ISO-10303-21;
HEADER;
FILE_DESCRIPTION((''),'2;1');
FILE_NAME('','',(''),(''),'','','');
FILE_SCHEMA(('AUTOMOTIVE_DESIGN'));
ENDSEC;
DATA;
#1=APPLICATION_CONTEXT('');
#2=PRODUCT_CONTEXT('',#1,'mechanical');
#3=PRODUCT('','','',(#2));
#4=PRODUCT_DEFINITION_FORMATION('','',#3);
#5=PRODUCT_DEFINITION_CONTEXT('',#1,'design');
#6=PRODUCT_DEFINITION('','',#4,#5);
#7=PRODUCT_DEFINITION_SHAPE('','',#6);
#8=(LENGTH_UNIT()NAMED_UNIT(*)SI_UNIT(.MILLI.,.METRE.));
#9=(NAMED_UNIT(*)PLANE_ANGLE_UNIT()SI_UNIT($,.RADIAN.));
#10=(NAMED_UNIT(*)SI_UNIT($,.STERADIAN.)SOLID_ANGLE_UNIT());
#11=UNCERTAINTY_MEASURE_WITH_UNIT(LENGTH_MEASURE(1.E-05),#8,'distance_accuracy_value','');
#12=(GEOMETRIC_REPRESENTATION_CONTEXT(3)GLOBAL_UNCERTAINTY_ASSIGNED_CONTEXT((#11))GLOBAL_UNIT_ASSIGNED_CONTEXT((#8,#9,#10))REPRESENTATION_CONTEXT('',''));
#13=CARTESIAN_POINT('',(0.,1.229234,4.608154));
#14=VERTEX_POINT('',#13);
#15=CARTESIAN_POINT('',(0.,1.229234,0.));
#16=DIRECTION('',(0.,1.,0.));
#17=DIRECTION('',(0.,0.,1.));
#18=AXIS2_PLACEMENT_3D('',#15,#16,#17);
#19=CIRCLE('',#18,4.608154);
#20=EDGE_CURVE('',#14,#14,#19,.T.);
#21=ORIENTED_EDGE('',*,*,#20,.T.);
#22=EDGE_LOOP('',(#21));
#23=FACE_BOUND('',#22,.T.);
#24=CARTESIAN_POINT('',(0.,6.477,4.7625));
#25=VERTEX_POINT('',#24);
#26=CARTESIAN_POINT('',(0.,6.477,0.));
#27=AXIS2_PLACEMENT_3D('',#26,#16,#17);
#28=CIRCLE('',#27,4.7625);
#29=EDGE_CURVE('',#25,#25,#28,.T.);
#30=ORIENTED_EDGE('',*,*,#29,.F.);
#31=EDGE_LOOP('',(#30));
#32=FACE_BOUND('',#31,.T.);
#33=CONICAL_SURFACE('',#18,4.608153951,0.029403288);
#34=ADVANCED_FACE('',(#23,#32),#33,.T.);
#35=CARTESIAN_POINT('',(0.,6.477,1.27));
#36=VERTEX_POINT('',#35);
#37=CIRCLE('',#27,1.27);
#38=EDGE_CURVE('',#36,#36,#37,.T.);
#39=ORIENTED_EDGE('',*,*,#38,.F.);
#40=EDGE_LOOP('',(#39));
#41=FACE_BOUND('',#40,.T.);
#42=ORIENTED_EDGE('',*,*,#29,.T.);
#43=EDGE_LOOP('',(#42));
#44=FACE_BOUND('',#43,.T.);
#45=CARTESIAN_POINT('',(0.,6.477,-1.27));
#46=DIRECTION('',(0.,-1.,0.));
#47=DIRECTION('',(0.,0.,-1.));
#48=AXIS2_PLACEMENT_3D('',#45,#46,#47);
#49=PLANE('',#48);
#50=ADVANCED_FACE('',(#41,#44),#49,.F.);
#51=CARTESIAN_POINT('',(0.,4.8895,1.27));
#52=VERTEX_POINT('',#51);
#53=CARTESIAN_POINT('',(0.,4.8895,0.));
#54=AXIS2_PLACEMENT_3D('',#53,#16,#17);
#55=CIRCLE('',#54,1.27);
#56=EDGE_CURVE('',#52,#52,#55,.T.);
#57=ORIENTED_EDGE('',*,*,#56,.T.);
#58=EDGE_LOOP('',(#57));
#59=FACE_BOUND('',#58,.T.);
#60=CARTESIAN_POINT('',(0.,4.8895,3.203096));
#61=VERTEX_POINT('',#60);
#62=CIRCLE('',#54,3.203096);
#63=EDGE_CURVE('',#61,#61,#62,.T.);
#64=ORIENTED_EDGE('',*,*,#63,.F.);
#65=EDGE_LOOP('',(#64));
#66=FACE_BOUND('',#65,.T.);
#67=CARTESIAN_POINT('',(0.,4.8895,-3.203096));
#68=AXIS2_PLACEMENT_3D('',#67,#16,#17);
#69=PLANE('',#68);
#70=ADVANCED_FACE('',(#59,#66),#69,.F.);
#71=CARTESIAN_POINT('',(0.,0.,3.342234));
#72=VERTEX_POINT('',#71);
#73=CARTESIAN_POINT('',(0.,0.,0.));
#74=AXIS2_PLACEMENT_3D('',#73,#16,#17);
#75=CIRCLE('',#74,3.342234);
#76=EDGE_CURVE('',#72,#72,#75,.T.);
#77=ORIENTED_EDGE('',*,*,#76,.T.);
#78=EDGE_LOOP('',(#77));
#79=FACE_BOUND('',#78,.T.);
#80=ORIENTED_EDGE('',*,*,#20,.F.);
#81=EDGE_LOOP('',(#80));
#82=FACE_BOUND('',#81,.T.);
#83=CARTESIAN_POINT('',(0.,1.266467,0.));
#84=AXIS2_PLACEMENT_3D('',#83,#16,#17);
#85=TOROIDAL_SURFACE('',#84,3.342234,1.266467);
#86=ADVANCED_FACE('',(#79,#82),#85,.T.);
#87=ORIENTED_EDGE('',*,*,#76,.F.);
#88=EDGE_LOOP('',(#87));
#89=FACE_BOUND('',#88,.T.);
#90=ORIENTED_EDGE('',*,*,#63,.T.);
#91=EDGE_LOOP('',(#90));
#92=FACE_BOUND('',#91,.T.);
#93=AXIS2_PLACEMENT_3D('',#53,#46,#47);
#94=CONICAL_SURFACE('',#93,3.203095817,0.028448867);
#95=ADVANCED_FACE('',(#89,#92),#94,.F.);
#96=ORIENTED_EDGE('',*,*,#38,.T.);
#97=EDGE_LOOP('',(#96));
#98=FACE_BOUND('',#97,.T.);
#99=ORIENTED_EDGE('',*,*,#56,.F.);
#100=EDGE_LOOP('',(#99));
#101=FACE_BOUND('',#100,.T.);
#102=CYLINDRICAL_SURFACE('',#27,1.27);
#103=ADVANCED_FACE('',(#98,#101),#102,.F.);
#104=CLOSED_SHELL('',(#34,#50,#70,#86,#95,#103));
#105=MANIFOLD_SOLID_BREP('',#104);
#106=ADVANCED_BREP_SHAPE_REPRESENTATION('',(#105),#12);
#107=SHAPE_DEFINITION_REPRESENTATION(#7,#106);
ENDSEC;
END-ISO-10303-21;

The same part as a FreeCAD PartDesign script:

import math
import FreeCAD as App
import Part
import Sketcher

V = App.Vector
Q = App.Units.Quantity

doc = App.newDocument("Part")
body = doc.addObject("PartDesign::Body", "Body")

# Sketch on YZ plane
sketch1 = body.newObject("Sketcher::SketchObject", "Sketch")
sketch1.AttachmentSupport = (doc.getObject("YZ_Plane"), [""])
sketch1.MapMode = "FlatFace"
sketch1.addGeometry(Part.LineSegment(V(6.477, -4.7625, 0), V(6.477, -1.27, 0)), False)
sketch1.addGeometry(Part.LineSegment(V(6.477, -1.27, 0), V(4.8895, -1.27, 0)), False)
sketch1.addGeometry(Part.LineSegment(V(4.8895, -1.27, 0), V(4.8895, -3.203096, 0)), False)
sketch1.addGeometry(Part.LineSegment(V(4.8895, -3.203096, 0), V(0, -3.342234, 0)), False)
sketch1.addGeometry(Part.ArcOfCircle(Part.Circle(V(1.266467, -3.342234, 0), V(0, 0, 1), 1.266467), math.radians(180), math.radians(268.315316)), False)
sketch1.addGeometry(Part.LineSegment(V(1.229234, -4.608154, 0), V(6.477, -4.7625, 0)), False)
sketch1.addConstraint(Sketcher.Constraint("Coincident", 0, 2, 1, 1))
sketch1.addConstraint(Sketcher.Constraint("Coincident", 1, 2, 2, 1))
sketch1.addConstraint(Sketcher.Constraint("Coincident", 2, 2, 3, 1))
sketch1.addConstraint(Sketcher.Constraint("Coincident", 3, 2, 4, 1))
sketch1.addConstraint(Sketcher.Constraint("Tangent", 4, 2, 5, 1))
sketch1.addConstraint(Sketcher.Constraint("Coincident", 5, 2, 0, 1))
sketch1.addConstraint(Sketcher.Constraint("Vertical", 0))
sketch1.addConstraint(Sketcher.Constraint("Horizontal", 1))
sketch1.addConstraint(Sketcher.Constraint("Vertical", 2))
sketch1.addConstraint(Sketcher.Constraint("PointOnObject", 3, 2, -2))
sketch1.addConstraint(Sketcher.Constraint("Horizontal", 4, 3, 3, 2))
sketch1.addConstraint(Sketcher.Constraint("DistanceX", 1, 2, 1, 1, Q("0.0625 in")))
sketch1.addConstraint(Sketcher.Constraint("DistanceY", 0, 2, -1, 1, Q("0.05 in")))
sketch1.addConstraint(Sketcher.Constraint("Angle", 3, Q("-178.37 deg")))
sketch1.addConstraint(Sketcher.Constraint("DistanceY", 0, 1, 0, 2, Q("0.1375 in")))
sketch1.addConstraint(Sketcher.Constraint("DistanceX", -1, 1, 0, 2, Q("0.255 in")))
sketch1.addConstraint(Sketcher.Constraint("Radius", 4, Q("1.266467 mm")))
sketch1.addConstraint(Sketcher.Constraint("DistanceY", 2, 2, 2, 1, Q("1.933096 mm")))
revolution = body.newObject("PartDesign::Revolution", "Revolution")
revolution.Profile = sketch1
revolution.ReferenceAxis = (sketch1, ["H_Axis"])
revolution.Angle = 360

doc.recompute()
